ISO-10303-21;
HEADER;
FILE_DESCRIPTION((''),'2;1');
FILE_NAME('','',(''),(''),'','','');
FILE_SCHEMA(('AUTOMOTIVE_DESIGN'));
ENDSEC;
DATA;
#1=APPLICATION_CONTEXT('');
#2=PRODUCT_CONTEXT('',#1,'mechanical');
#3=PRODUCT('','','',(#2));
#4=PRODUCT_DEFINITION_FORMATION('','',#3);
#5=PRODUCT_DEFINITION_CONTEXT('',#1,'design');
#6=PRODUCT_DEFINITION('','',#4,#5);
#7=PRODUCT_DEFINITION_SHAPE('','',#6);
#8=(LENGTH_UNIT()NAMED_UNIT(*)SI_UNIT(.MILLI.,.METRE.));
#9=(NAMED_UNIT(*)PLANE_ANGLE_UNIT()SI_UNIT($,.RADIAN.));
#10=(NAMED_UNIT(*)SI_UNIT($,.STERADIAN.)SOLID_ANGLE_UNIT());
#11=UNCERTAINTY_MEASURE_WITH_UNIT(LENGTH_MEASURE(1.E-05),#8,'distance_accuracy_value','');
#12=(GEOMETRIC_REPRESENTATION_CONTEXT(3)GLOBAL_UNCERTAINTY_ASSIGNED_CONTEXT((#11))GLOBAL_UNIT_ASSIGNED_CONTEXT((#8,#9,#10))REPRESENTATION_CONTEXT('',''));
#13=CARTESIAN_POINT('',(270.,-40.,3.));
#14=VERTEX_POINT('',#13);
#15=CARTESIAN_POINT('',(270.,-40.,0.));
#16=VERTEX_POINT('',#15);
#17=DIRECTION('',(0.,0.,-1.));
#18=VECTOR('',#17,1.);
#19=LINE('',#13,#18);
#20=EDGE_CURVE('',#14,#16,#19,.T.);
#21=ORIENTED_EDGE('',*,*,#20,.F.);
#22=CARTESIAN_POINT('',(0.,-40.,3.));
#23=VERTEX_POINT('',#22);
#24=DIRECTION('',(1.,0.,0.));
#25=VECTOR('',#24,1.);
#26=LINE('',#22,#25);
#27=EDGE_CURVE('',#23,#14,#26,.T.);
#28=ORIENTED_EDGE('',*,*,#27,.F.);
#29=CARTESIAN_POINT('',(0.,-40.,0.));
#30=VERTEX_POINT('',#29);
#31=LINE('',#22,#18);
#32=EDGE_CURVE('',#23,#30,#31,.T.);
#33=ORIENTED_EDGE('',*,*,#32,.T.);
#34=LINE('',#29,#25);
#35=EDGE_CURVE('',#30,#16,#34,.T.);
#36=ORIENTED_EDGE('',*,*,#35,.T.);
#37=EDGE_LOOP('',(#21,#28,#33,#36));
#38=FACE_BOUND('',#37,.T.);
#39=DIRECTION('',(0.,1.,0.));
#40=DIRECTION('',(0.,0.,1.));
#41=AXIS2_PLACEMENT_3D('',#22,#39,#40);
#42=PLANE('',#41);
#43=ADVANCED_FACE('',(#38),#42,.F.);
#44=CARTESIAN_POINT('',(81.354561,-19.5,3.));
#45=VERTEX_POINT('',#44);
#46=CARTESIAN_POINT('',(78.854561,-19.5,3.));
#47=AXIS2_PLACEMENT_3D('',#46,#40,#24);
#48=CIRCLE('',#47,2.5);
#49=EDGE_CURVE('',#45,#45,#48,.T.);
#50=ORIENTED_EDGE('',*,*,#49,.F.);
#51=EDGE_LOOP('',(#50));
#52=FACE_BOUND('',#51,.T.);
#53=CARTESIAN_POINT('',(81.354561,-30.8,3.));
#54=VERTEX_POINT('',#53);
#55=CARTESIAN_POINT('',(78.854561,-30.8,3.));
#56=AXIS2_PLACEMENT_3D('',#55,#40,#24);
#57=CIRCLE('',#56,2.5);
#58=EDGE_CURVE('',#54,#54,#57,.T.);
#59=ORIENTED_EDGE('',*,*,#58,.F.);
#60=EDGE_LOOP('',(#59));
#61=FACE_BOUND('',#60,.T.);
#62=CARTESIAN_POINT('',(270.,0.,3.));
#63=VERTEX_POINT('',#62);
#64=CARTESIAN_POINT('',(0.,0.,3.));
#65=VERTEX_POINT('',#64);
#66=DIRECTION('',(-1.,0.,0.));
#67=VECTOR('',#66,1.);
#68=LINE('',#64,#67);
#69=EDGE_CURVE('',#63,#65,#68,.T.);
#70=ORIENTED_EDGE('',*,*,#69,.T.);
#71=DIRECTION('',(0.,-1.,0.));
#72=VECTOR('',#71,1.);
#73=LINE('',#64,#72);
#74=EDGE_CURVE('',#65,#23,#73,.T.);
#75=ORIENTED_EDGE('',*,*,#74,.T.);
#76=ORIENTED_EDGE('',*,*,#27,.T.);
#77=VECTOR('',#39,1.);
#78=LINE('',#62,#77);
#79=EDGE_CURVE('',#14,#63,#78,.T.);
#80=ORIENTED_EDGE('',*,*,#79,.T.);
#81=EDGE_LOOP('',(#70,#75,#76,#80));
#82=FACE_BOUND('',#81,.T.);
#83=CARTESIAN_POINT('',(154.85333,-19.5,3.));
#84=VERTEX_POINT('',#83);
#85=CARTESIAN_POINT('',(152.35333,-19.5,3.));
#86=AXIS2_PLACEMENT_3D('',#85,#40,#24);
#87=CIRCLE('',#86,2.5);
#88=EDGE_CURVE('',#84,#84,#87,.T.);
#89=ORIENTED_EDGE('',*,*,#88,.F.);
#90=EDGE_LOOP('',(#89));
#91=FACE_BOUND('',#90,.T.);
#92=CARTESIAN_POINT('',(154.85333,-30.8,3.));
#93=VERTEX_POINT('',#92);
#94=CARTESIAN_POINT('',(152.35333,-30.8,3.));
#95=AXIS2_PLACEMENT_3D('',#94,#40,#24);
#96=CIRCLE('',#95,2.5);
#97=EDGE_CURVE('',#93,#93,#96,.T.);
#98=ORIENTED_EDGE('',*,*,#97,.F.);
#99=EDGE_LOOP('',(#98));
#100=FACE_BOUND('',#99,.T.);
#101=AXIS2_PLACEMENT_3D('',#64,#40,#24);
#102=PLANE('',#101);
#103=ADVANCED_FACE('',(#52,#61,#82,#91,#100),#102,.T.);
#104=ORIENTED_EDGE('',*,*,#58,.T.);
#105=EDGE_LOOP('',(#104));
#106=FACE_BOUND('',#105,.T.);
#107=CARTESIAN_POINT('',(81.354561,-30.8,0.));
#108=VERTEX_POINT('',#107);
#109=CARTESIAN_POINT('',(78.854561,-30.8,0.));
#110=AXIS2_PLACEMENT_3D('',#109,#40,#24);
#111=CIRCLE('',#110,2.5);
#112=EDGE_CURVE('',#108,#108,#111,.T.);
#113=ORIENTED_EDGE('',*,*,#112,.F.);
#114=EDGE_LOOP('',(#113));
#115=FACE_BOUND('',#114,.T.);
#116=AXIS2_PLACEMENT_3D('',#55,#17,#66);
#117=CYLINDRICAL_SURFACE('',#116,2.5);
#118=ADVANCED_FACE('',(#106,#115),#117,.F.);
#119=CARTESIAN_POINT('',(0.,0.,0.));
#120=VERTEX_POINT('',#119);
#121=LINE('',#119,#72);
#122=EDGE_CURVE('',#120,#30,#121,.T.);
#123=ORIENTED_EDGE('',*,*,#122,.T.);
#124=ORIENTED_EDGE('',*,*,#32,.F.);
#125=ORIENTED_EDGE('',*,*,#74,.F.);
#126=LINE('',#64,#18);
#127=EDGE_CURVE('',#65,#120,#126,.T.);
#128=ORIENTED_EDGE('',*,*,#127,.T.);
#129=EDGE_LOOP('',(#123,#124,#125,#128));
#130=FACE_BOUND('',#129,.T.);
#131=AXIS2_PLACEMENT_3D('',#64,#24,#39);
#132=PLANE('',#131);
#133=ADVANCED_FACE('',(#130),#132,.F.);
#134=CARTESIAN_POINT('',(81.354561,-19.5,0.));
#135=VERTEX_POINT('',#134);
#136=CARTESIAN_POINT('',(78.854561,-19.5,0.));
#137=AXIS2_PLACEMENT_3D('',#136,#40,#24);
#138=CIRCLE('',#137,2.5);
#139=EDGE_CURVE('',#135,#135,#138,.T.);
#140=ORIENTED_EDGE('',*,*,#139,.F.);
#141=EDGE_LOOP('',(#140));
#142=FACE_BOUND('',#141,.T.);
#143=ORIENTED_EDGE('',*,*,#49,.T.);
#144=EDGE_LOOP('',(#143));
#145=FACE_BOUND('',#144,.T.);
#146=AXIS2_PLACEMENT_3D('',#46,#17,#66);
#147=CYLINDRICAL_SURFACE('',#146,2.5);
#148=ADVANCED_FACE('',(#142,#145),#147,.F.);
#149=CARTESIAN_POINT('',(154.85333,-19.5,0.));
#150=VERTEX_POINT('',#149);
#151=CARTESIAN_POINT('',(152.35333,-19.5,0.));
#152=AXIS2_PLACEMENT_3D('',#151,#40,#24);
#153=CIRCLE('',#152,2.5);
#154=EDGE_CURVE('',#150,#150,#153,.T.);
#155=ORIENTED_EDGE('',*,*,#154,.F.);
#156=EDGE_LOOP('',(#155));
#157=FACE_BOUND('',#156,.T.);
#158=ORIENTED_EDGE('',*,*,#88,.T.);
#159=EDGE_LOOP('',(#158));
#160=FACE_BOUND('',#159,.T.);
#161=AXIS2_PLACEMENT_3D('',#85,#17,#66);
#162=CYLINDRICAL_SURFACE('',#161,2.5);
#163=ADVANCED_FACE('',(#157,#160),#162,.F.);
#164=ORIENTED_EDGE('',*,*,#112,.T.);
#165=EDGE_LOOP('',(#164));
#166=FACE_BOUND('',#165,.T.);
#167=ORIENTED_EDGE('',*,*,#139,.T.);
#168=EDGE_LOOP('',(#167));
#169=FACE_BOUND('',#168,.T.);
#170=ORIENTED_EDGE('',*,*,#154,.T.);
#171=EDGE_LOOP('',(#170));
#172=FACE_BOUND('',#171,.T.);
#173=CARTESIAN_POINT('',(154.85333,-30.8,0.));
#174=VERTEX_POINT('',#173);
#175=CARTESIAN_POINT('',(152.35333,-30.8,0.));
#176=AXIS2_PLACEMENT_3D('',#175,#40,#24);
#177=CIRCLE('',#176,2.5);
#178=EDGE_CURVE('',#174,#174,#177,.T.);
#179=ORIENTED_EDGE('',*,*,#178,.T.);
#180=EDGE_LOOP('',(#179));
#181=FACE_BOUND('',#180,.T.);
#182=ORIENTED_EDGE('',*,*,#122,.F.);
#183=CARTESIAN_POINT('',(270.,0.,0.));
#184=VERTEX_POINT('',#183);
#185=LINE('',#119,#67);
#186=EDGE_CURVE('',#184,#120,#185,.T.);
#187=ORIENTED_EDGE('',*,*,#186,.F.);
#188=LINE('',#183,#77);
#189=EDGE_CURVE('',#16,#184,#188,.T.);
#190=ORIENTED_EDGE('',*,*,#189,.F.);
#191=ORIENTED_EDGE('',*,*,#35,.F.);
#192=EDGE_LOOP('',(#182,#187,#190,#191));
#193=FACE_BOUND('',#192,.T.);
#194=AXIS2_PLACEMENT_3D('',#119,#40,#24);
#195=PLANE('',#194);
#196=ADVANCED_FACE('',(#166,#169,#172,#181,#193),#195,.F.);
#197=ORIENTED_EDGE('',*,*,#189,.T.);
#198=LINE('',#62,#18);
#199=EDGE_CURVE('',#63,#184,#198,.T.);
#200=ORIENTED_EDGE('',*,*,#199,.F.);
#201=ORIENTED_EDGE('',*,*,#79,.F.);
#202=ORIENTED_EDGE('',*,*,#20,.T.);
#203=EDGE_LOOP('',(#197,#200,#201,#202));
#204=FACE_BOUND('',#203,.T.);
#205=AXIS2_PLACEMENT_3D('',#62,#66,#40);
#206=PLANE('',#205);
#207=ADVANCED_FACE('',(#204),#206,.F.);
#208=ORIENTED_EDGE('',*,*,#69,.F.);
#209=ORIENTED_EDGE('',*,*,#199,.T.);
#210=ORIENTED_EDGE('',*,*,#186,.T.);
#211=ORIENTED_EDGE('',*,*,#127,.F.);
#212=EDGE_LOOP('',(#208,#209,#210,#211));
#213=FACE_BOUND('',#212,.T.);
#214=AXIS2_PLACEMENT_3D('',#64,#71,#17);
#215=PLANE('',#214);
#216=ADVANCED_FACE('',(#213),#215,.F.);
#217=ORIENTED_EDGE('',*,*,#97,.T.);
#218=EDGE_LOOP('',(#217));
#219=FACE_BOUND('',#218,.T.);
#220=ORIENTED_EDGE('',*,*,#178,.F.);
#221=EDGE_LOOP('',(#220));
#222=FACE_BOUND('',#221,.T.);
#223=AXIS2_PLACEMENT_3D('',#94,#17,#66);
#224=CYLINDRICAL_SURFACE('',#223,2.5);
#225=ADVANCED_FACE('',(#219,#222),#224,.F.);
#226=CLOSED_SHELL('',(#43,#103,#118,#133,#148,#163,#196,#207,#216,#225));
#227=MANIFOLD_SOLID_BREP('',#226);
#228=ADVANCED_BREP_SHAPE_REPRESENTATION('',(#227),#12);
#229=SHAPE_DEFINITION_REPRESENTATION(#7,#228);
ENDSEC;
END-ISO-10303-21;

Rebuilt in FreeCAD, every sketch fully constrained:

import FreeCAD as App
import Part
import Sketcher

V = App.Vector
Q = App.Units.Quantity

doc = App.newDocument("Part")
body = doc.addObject("PartDesign::Body", "Body")

sketch1 = doc.addObject("Sketcher::SketchObject", "Sketch")
body.addObject(sketch1)
sketch1.AttachmentSupport = (doc.XY_Plane, [""])
sketch1.MapMode = "FlatFace"
sketch1.addGeometry([
    Part.LineSegment(V(0, 0, 0), V(0, -40, 0)),
    Part.LineSegment(V(0, -40, 0), V(270, -40, 0)),
    Part.LineSegment(V(270, -40, 0), V(270, 0, 0)),
    Part.LineSegment(V(270, 0, 0), V(0, 0, 0)),
    Part.Circle(V(78.9, -30.8, 0), V(0, 0, 1), 2.5),
    Part.Circle(V(152.4, -30.8, 0), V(0, 0, 1), 2.5),
    Part.Circle(V(78.9, -19.5, 0), V(0, 0, 1), 2.5),
    Part.Circle(V(152.4, -19.5, 0), V(0, 0, 1), 2.5),
], False)
sketch1.addConstraint([
    Sketcher.Constraint("Coincident", 0, 2, 1, 1),
    Sketcher.Constraint("Coincident", 1, 2, 2, 1),
    Sketcher.Constraint("Coincident", 2, 2, 3, 1),
    Sketcher.Constraint("Coincident", 3, 2, 0, 1),
    Sketcher.Constraint("Vertical", 0),
    Sketcher.Constraint("Horizontal", 1),
    Sketcher.Constraint("Vertical", 2),
    Sketcher.Constraint("Horizontal", 3),
    Sketcher.Constraint("Coincident", 3, 2, -1, 1),
    Sketcher.Constraint("Equal", 4, 5),
    Sketcher.Constraint("Equal", 5, 6),
    Sketcher.Constraint("Equal", 6, 7),
    Sketcher.Constraint("Horizontal", 4, 3, 5, 3),
    Sketcher.Constraint("Horizontal", 6, 3, 7, 3),
    Sketcher.Constraint("Vertical", 4, 3, 6, 3),
    Sketcher.Constraint("Vertical", 5, 3, 7, 3),
    Sketcher.Constraint("Diameter", 4, Q("5 mm")),
    Sketcher.Constraint("DistanceX", 1, 1, 1, 2, Q("270 mm")),
    Sketcher.Constraint("DistanceY", 0, 2, 0, 1, Q("40 mm")),
    Sketcher.Constraint("DistanceY", 4, 3, -1, 1, Q("30.8 mm")),
    Sketcher.Constraint("DistanceY", 6, 3, -1, 1, Q("19.5 mm")),
    Sketcher.Constraint("DistanceX", -1, 1, 4, 3, Q("78.854561 mm")),
    Sketcher.Constraint("DistanceX", -1, 1, 5, 3, Q("152.35333 mm")),
])
pad1 = doc.addObject("PartDesign::Pad", "Pad")
body.addObject(pad1)
pad1.Profile = sketch1
pad1.Length = 3

doc.recompute()
